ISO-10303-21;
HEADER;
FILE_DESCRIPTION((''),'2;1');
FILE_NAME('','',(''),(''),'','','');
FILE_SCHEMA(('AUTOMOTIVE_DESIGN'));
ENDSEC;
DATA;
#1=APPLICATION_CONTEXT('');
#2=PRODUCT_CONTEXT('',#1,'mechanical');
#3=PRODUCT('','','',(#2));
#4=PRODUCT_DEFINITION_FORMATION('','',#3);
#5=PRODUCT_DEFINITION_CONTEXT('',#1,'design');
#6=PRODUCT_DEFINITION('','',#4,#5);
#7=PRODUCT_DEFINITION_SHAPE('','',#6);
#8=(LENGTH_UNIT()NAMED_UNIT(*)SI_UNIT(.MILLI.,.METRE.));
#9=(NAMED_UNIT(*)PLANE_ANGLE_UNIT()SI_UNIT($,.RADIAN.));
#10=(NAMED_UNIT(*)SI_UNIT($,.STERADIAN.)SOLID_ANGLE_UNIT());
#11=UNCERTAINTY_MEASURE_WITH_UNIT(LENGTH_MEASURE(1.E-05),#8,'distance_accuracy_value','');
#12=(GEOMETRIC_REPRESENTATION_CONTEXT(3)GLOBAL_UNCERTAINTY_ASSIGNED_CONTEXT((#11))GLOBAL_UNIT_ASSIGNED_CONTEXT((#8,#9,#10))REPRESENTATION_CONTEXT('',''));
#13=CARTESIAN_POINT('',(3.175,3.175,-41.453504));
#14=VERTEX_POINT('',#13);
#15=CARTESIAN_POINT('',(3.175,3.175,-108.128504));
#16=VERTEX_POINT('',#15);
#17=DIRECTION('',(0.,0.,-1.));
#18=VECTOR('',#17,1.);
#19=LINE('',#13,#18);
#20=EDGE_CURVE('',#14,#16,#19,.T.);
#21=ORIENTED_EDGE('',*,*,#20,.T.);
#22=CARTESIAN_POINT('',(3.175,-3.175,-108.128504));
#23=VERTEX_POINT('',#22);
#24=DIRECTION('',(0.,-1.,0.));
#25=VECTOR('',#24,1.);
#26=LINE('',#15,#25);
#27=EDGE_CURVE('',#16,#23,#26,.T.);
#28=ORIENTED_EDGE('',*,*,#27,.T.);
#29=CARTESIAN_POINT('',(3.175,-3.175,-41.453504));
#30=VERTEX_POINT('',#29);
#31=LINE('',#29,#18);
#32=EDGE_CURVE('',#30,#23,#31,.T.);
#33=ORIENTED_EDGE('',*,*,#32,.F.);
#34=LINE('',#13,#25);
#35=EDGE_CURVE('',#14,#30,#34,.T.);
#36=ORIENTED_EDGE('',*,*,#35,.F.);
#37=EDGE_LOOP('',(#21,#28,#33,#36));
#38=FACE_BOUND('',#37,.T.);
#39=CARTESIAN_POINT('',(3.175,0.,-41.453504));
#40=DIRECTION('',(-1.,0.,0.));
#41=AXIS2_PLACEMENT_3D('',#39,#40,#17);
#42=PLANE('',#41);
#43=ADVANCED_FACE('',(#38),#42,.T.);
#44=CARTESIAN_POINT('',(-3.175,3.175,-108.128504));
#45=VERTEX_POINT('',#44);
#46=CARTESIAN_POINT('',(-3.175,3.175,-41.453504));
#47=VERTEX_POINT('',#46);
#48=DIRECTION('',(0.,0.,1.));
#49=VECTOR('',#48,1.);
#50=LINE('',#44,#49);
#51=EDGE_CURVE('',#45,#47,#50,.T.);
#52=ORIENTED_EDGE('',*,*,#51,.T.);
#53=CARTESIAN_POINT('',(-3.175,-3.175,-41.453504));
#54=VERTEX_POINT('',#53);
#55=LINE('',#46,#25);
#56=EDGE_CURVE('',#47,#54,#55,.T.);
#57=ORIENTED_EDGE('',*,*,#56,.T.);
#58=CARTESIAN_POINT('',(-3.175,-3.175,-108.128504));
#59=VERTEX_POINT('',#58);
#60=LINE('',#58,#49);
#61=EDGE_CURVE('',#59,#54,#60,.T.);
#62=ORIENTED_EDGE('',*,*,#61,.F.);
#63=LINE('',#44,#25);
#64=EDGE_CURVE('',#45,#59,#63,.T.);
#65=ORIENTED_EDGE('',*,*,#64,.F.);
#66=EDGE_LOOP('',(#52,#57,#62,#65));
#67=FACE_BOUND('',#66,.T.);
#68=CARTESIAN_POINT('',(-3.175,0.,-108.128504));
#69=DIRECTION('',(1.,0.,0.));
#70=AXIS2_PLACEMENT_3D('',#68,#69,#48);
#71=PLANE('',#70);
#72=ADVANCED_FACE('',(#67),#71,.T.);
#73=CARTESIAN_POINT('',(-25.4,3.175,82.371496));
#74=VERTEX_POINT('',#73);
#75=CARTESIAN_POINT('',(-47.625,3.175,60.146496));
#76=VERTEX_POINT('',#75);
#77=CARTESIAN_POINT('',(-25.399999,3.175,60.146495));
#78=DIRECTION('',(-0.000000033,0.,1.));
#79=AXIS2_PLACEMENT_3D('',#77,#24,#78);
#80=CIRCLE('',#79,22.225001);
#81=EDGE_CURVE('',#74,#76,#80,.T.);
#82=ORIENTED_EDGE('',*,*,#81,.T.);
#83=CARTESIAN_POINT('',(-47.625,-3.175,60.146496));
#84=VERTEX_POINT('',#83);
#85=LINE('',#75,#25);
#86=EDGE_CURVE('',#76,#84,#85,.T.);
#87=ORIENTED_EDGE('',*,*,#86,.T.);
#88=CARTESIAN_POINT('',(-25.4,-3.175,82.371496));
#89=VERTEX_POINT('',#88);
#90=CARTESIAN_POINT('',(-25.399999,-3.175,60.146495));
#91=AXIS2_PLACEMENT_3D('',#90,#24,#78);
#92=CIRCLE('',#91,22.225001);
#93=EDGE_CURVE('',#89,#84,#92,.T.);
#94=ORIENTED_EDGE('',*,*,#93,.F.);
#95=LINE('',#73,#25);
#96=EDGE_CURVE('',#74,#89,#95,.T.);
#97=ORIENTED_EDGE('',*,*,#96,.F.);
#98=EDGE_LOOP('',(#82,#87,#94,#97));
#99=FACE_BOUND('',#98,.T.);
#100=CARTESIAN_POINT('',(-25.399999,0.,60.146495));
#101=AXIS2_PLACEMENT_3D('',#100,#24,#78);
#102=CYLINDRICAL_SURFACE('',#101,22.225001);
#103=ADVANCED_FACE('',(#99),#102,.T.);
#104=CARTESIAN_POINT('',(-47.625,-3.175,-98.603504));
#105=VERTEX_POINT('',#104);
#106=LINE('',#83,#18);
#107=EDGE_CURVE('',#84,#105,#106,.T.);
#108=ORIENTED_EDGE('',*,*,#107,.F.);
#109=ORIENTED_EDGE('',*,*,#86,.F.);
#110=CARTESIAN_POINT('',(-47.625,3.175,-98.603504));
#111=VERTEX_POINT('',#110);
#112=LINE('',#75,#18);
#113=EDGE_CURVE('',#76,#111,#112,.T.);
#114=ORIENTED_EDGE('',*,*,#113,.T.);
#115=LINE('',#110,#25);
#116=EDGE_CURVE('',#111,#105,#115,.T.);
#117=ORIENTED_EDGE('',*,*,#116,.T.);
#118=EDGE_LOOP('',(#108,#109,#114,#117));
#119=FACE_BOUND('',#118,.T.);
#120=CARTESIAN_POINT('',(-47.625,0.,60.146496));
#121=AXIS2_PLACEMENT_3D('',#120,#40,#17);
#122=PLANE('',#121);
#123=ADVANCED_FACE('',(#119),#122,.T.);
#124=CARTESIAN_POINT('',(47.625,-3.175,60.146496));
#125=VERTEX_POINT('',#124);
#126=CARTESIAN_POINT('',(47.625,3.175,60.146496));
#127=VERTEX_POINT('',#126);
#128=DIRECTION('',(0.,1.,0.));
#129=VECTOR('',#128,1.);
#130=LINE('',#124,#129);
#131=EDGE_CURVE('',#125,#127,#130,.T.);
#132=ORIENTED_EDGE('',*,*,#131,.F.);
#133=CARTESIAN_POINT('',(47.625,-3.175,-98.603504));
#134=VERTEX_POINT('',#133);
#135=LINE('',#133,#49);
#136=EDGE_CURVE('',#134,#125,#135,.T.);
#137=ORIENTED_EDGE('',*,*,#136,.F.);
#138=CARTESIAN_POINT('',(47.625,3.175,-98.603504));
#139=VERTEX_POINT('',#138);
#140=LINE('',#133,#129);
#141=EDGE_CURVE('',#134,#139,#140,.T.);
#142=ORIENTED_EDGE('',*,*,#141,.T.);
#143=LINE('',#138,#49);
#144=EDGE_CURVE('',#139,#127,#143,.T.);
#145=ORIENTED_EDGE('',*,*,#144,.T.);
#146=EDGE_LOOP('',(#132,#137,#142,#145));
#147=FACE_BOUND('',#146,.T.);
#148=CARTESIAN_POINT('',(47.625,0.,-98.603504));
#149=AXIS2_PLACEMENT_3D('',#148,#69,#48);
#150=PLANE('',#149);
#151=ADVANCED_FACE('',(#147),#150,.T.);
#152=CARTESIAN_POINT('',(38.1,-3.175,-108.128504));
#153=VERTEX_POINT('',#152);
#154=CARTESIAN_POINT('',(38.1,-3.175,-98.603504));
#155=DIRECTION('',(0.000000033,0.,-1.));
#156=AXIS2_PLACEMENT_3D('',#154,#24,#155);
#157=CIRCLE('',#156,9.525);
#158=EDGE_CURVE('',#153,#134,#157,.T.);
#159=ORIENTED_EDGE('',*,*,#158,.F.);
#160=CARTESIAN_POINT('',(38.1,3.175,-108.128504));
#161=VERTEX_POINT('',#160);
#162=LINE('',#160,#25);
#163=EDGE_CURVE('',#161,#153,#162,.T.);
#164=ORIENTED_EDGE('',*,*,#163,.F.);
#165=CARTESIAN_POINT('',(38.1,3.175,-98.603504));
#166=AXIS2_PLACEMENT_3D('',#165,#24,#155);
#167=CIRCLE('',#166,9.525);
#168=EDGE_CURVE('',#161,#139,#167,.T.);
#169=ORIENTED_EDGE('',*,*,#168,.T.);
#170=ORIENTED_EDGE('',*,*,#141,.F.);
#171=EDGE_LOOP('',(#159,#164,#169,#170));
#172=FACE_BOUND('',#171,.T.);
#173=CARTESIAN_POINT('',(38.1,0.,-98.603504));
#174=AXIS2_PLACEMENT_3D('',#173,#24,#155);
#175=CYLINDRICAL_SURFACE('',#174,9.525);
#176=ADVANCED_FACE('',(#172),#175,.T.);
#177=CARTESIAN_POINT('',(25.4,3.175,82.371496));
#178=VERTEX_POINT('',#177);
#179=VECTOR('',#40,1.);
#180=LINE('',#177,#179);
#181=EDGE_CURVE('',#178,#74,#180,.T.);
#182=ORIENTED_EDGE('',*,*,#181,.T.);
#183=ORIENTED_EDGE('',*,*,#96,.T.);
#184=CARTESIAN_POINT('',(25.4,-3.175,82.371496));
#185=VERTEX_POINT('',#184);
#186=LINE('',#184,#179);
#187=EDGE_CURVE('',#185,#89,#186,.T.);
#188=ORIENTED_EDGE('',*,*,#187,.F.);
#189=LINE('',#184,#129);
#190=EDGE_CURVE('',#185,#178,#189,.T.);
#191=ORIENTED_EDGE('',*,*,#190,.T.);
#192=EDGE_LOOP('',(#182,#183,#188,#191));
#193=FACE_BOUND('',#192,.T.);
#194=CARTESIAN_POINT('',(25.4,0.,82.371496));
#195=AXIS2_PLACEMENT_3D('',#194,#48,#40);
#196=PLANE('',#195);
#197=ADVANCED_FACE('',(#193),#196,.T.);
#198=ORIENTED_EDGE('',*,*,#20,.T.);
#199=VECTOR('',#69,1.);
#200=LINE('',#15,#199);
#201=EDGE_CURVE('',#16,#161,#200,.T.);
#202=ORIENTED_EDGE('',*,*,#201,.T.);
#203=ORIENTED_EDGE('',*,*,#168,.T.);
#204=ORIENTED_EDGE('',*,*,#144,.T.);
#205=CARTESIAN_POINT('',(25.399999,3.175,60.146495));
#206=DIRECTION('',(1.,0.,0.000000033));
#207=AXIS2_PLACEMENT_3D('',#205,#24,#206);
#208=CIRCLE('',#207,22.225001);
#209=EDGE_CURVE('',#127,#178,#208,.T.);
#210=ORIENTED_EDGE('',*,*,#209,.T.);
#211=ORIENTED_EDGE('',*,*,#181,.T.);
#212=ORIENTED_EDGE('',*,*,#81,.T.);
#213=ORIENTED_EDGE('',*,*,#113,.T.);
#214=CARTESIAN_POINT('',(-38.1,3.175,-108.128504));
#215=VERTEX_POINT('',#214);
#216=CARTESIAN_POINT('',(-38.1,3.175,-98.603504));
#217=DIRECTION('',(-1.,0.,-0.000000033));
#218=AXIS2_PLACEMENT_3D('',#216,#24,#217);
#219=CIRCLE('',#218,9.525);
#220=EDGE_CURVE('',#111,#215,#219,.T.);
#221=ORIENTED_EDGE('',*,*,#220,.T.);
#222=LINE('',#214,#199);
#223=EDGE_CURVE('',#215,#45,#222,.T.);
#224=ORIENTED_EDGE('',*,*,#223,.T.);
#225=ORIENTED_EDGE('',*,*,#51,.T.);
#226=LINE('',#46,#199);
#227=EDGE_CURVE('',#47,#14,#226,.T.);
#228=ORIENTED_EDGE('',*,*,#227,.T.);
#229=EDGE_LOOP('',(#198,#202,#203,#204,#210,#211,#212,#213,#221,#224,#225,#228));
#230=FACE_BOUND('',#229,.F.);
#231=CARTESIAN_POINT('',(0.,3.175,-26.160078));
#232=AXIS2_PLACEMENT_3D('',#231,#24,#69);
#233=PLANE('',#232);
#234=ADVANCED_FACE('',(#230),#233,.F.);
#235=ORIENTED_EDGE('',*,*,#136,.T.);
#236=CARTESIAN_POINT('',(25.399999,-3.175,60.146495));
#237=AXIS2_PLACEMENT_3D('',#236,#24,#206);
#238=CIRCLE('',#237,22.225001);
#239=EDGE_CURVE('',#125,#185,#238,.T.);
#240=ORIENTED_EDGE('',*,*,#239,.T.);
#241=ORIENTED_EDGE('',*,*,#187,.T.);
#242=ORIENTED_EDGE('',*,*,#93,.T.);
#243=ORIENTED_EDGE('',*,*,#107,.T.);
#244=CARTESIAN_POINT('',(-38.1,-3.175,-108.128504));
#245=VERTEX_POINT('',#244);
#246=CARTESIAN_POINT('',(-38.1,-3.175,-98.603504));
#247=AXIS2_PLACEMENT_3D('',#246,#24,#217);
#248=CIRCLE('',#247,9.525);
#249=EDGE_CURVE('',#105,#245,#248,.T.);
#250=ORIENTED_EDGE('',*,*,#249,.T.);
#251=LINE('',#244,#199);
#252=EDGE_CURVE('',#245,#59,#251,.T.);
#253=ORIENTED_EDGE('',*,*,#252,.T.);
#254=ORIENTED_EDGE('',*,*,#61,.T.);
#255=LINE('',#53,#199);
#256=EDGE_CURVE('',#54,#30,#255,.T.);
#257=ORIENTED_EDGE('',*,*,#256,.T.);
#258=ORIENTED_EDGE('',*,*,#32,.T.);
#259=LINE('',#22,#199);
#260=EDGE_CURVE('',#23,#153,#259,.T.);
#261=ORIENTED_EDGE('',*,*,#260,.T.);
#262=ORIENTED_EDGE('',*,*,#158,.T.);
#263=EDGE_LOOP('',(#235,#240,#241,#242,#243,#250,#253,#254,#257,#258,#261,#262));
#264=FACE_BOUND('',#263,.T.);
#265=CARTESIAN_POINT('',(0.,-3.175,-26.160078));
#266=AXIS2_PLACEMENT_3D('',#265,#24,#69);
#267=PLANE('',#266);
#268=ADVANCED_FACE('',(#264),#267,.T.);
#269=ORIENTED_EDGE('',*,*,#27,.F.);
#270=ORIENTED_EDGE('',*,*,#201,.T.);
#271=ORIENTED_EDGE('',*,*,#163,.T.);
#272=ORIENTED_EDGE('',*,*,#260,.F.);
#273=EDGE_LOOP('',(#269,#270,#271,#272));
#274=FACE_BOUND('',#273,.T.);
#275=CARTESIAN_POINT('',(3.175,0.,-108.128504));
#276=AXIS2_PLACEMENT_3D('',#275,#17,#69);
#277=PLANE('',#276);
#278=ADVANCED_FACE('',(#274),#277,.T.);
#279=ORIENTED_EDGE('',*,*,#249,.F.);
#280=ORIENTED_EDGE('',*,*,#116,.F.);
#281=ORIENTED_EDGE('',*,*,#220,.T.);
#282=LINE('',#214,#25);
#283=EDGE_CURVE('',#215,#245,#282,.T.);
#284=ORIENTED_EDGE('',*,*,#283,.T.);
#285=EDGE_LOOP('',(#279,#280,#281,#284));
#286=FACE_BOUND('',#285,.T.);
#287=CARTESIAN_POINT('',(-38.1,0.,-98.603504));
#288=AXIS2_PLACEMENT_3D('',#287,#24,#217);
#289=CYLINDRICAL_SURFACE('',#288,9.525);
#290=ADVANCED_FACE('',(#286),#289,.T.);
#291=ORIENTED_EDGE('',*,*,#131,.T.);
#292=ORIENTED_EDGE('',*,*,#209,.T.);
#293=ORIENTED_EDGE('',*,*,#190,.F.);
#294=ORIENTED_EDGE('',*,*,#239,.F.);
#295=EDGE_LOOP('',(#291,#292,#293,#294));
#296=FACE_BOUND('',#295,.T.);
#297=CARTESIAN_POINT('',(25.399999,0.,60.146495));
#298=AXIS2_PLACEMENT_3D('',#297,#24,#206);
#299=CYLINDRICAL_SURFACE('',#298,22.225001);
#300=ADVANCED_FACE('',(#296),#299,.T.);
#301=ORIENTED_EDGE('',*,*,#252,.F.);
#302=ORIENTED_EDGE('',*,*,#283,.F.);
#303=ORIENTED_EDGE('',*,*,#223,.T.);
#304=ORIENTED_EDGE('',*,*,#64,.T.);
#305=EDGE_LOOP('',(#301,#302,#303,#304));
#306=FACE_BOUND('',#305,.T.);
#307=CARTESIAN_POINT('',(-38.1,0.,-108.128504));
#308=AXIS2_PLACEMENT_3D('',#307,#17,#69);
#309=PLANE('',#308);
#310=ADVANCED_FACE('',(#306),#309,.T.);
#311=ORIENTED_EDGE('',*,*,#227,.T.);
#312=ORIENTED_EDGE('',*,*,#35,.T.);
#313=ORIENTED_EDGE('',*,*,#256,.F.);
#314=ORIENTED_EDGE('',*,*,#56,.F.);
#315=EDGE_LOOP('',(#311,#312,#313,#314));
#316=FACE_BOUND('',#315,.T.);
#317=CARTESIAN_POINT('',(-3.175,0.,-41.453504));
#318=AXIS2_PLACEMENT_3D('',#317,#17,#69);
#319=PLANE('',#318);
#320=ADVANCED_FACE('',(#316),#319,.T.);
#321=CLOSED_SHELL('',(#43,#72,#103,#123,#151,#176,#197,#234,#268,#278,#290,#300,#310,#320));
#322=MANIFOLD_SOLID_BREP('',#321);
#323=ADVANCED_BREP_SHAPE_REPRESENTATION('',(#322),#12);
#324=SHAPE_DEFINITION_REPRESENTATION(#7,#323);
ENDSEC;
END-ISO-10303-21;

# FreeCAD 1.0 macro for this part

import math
import FreeCAD as App
import Part
import Sketcher
Q = App.Units.Quantity

doc = App.newDocument("Part")
body = doc.addObject("PartDesign::Body", "Body")

sketch1 = body.newObject("Sketcher::SketchObject", "Sketch")
sketch1.AttachmentSupport = (doc.getObject("XZ_Plane"), [""])
sketch1.MapMode = "FlatFace"
sketch1.addGeometry([
    Part.LineSegment(App.Vector(25.4, 82.371496, 0), App.Vector(-25.4, 82.371496, 0)),
    Part.ArcOfCircle(Part.Circle(App.Vector(-25.399999, 60.146495, 0), App.Vector(0, 0, 1), 22.225001), math.radians(90.000002), math.radians(179.999998)),
    Part.LineSegment(App.Vector(-47.625, 60.146496, 0), App.Vector(-47.625, -98.603504, 0)),
    Part.ArcOfCircle(Part.Circle(App.Vector(-38.1, -98.603504, 0), App.Vector(0, 0, 1), 9.525), math.radians(-179.999998), math.radians(-90.000002)),
    Part.LineSegment(App.Vector(-38.1, -108.128504, 0), App.Vector(-3.175, -108.128504, 0)),
    Part.LineSegment(App.Vector(-3.175, -108.128504, 0), App.Vector(-3.175, -41.453504, 0)),
    Part.LineSegment(App.Vector(-3.175, -41.453504, 0), App.Vector(3.175, -41.453504, 0)),
    Part.LineSegment(App.Vector(3.175, -41.453504, 0), App.Vector(3.175, -108.128504, 0)),
    Part.LineSegment(App.Vector(3.175, -108.128504, 0), App.Vector(38.1, -108.128504, 0)),
    Part.ArcOfCircle(Part.Circle(App.Vector(38.1, -98.603504, 0), App.Vector(0, 0, 1), 9.525), math.radians(-89.999998), math.radians(-0.000002)),
    Part.LineSegment(App.Vector(47.625, -98.603504, 0), App.Vector(47.625, 60.146496, 0)),
    Part.ArcOfCircle(Part.Circle(App.Vector(25.399999, 60.146495, 0), App.Vector(0, 0, 1), 22.225001), math.radians(0.000002), math.radians(89.999998)),
], False)
sketch1.addConstraint([
    Sketcher.Constraint("Tangent", 0, 2, 1, 1),
    Sketcher.Constraint("Tangent", 1, 2, 2, 1),
    Sketcher.Constraint("Tangent", 2, 2, 3, 1),
    Sketcher.Constraint("Tangent", 3, 2, 4, 1),
    Sketcher.Constraint("Coincident", 4, 2, 5, 1),
    Sketcher.Constraint("Coincident", 5, 2, 6, 1),
    Sketcher.Constraint("Coincident", 6, 2, 7, 1),
    Sketcher.Constraint("Coincident", 7, 2, 8, 1),
    Sketcher.Constraint("Tangent", 8, 2, 9, 1),
    Sketcher.Constraint("Tangent", 9, 2, 10, 1),
    Sketcher.Constraint("Tangent", 10, 2, 11, 1),
    Sketcher.Constraint("Tangent", 11, 2, 0, 1),
    Sketcher.Constraint("Horizontal", 0),
    Sketcher.Constraint("Vertical", 2),
    Sketcher.Constraint("Horizontal", 4),
    Sketcher.Constraint("Vertical", 5),
    Sketcher.Constraint("Horizontal", 6),
    Sketcher.Constraint("Vertical", 7),
    Sketcher.Constraint("Horizontal", 8),
    Sketcher.Constraint("Vertical", 10),
    Sketcher.Constraint("Equal", 3, 9),
    Sketcher.Constraint("Equal", 1, 11),
    Sketcher.Constraint("Symmetric", 3, 3, 9, 3, -2),
    Sketcher.Constraint("Equal", 4, 8),
    Sketcher.Constraint("DistanceX", 0, 2, 0, 1, Q("2 in")),
    Sketcher.Constraint("Radius", 1, Q("0.875 in")),
    Sketcher.Constraint("Radius", 3, Q("0.375 in")),
    Sketcher.Constraint("DistanceX", 2, 2, 6, 2, Q("2 in")),
    Sketcher.Constraint("DistanceY", 6, 2, 10, 2, Q("4 in")),
    Sketcher.Constraint("DistanceY", 2, 2, 2, 1, Q("6.25 in")),
    Sketcher.Constraint("DistanceY", -1, 1, 1, 3, Q("60.146495 mm")),
])
pad1 = body.newObject("PartDesign::Pad", "Pad")
pad1.Profile = sketch1
pad1.Length = Q("0.25 in")
pad1.Midplane = True

doc.recompute()
